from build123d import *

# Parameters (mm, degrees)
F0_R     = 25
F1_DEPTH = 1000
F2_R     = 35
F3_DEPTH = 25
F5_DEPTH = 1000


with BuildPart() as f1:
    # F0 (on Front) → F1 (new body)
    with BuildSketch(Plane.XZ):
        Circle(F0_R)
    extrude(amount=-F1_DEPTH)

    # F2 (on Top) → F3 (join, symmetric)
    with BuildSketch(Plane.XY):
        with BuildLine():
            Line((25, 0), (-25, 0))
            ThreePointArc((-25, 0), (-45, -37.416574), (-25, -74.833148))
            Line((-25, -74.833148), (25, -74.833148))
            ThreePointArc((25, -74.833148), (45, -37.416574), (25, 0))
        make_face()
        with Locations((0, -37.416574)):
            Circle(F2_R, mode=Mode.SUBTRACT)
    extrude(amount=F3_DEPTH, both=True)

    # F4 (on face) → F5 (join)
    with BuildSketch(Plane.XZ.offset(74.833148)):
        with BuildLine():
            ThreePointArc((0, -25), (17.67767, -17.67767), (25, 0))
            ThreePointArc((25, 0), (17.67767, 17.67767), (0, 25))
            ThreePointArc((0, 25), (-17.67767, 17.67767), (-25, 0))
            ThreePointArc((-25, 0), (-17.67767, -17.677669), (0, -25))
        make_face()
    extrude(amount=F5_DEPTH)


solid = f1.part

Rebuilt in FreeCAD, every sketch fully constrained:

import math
import FreeCAD as App
import Part
import Sketcher
Q = App.Units.Quantity

doc = App.newDocument("Part")
params = doc.addObject("Spreadsheet::Sheet", "Params")
for row, (alias, value) in enumerate([
    ("sketch1_diameter", "50 mm"),
    ("pad1_length", "1000 mm"),
    ("sketch2_diameter", "70 mm"),
    ("sketch2_radius", "45 mm"),
    ("sketch2_width", "50 mm"),
    ("pad2_length", "50 mm"),
    ("sketch3_radius", "24.999998 mm"),
    ("pad3_length", "1000 mm"),
], start=1):
    params.set(f"A{row}", alias)
    params.set(f"B{row}", "=" + value)
    params.setAlias(f"B{row}", alias)

body = doc.addObject("PartDesign::Body", "Body")

# Sketch on XZ plane
sketch1 = body.newObject("Sketcher::SketchObject", "Sketch")
sketch1.AttachmentSupport = (doc.getObject("XZ_Plane"), [""])
sketch1.MapMode = "FlatFace"
sketch1.addGeometry(Part.Circle(App.Vector(0, 0, 0), App.Vector(0, 0, 1), 25), False)
sketch1.addConstraint(Sketcher.Constraint("Coincident", 0, 3, -1, 1))
sketch1.addConstraint(Sketcher.Constraint("Diameter", 0, Q("50 mm")))
sketch1.setExpression("Constraints[1]", "Params.sketch1_diameter")
pad1 = body.newObject("PartDesign::Pad", "Pad")
pad1.Profile = sketch1
pad1.setExpression("Length", "Params.pad1_length")
pad1.Reversed = True

# Sketch on XY plane
sketch2 = body.newObject("Sketcher::SketchObject", "Sketch001")
sketch2.AttachmentSupport = (doc.getObject("XY_Plane"), [""])
sketch2.MapMode = "FlatFace"
sketch2.addGeometry(Part.LineSegment(App.Vector(25, 0, 0), App.Vector(-25, 0, 0)), False)
sketch2.addGeometry(Part.ArcOfCircle(Part.Circle(App.Vector(0, -37, 0), App.Vector(0, 0, 1), 45), math.radians(124), math.radians(236)), False)
sketch2.addGeometry(Part.LineSegment(App.Vector(-25, -75, 0), App.Vector(25, -75, 0)), False)
sketch2.addGeometry(Part.ArcOfCircle(Part.Circle(App.Vector(0, -37, 0), App.Vector(0, 0, 1), 45), math.radians(-56), math.radians(56)), False)
sketch2.addGeometry(Part.Circle(App.Vector(0, -37, 0), App.Vector(0, 0, 1), 35), False)
sketch2.addConstraint(Sketcher.Constraint("Coincident", 0, 2, 1, 1))
sketch2.addConstraint(Sketcher.Constraint("Coincident", 1, 2, 2, 1))
sketch2.addConstraint(Sketcher.Constraint("Coincident", 2, 2, 3, 1))
sketch2.addConstraint(Sketcher.Constraint("Coincident", 3, 2, 0, 1))
sketch2.addConstraint(Sketcher.Constraint("Horizontal", 0))
sketch2.addConstraint(Sketcher.Constraint("Horizontal", 2))
sketch2.addConstraint(Sketcher.Constraint("Coincident", 3, 3, 1, 3))
sketch2.addConstraint(Sketcher.Constraint("Coincident", 4, 3, 1, 3))
sketch2.addConstraint(Sketcher.Constraint("Equal", 1, 3))
sketch2.addConstraint(Sketcher.Constraint("Symmetric", 0, 2, 3, 2, -1, 1))
sketch2.addConstraint(Sketcher.Constraint("Vertical", 0, 2, 1, 2))
sketch2.addConstraint(Sketcher.Constraint("Diameter", 4, Q("70 mm")))
sketch2.addConstraint(Sketcher.Constraint("Radius", 1, Q("45 mm")))
sketch2.addConstraint(Sketcher.Constraint("DistanceX", 0, 2, 0, 1, Q("50 mm")))
sketch2.setExpression("Constraints[11]", "Params.sketch2_diameter")
sketch2.setExpression("Constraints[12]", "Params.sketch2_radius")
sketch2.setExpression("Constraints[13]", "Params.sketch2_width")
pad2 = body.newObject("PartDesign::Pad", "Pad001")
pad2.Profile = sketch2
pad2.setExpression("Length", "Params.pad2_length")
pad2.Midplane = True

# Sketch on XZ plane
sketch3 = body.newObject("Sketcher::SketchObject", "Sketch002")
sketch3.AttachmentSupport = (doc.getObject("XZ_Plane"), [""])
sketch3.MapMode = "FlatFace"
sketch3.AttachmentOffset = App.Placement(App.Vector(0, 0, 74.833148), App.Rotation())
sketch3.addGeometry(Part.ArcOfCircle(Part.Circle(App.Vector(0, 0, 0), App.Vector(0, 0, 1), 25), math.radians(-90), math.radians(0)), False)
sketch3.addGeometry(Part.ArcOfCircle(Part.Circle(App.Vector(0, 0, 0), App.Vector(0, 0, 1), 25), math.radians(0), math.radians(90)), False)
sketch3.addGeometry(Part.ArcOfCircle(Part.Circle(App.Vector(0, 0, 0), App.Vector(0, 0, 1), 25), math.radians(90), math.radians(180)), False)
sketch3.addGeometry(Part.ArcOfCircle(Part.Circle(App.Vector(0, 0, 0), App.Vector(0, 0, 1), 25), math.radians(-180), math.radians(-90)), False)
sketch3.addConstraint(Sketcher.Constraint("Tangent", 0, 2, 1, 1))
sketch3.addConstraint(Sketcher.Constraint("Tangent", 1, 2, 2, 1))
sketch3.addConstraint(Sketcher.Constraint("Tangent", 2, 2, 3, 1))
sketch3.addConstraint(Sketcher.Constraint("Tangent", 3, 2, 0, 1))
sketch3.addConstraint(Sketcher.Constraint("Coincident", 0, 3, -1, 1))
sketch3.addConstraint(Sketcher.Constraint("Equal", 0, 1))
sketch3.addConstraint(Sketcher.Constraint("PointOnObject", 0, 2, -1))
sketch3.addConstraint(Sketcher.Constraint("PointOnObject", 1, 2, -2))
sketch3.addConstraint(Sketcher.Constraint("PointOnObject", 2, 2, -1))
sketch3.addConstraint(Sketcher.Constraint("PointOnObject", 3, 2, -2))
sketch3.addConstraint(Sketcher.Constraint("Radius", 0, Q("24.999998 mm")))
sketch3.setExpression("Constraints[10]", "Params.sketch3_radius")
pad3 = body.newObject("PartDesign::Pad", "Pad002")
pad3.Profile = sketch3
pad3.setExpression("Length", "Params.pad3_length")

doc.recompute()
